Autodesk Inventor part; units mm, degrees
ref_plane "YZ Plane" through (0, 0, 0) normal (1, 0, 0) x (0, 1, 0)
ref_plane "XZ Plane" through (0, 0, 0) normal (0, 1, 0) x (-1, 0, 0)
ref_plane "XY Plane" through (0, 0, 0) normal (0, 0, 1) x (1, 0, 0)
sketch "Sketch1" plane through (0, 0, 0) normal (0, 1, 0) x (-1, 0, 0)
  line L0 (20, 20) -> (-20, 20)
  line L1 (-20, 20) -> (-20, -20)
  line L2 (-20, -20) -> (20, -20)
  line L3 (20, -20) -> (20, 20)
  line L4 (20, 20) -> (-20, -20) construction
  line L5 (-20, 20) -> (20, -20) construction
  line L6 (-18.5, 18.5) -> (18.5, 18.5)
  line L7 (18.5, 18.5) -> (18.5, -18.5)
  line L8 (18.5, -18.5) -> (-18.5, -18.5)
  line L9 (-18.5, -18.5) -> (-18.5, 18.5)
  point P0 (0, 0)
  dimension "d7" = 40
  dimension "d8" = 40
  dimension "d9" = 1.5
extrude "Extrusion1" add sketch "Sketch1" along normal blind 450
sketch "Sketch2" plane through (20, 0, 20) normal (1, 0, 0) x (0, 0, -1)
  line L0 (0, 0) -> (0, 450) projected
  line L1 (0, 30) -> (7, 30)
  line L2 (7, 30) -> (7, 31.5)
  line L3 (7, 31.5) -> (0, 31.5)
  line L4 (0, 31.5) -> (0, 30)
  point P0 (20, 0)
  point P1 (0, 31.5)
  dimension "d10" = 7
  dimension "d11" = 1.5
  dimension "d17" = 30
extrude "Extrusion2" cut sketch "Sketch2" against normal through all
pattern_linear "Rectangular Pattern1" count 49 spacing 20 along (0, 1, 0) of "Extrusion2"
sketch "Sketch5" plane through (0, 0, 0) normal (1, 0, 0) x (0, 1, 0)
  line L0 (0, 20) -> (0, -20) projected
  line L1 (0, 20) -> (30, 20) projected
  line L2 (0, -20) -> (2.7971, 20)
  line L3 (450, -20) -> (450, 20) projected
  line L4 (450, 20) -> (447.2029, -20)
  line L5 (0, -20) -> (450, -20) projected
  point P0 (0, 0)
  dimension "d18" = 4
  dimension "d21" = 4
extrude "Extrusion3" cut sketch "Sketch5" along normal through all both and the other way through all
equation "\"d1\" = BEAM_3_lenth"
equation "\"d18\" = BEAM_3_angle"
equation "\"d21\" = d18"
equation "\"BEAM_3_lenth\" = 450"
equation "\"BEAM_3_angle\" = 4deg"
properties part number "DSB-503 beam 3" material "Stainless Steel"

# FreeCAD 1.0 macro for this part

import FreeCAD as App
import Part
import Sketcher
from FreeCAD import Vector
Q = App.Units.Quantity

doc = App.newDocument("Part")
body = doc.addObject("PartDesign::Body", "Body")

# Sketch on XZ plane
sketch1 = body.newObject("Sketcher::SketchObject", "Sketch")
sketch1.AttachmentSupport = (doc.getObject("XZ_Plane"), [""])
sketch1.MapMode = "FlatFace"
sketch1.addGeometry(Part.LineSegment(Vector(-20, -20, 0), Vector(-20, 20, 0)), False)
sketch1.addGeometry(Part.LineSegment(Vector(-20, 20, 0), Vector(20, 20, 0)), False)
sketch1.addGeometry(Part.LineSegment(Vector(20, 20, 0), Vector(20, -20, 0)), False)
sketch1.addGeometry(Part.LineSegment(Vector(20, -20, 0), Vector(-20, -20, 0)), False)
sketch1.addGeometry(Part.LineSegment(Vector(18, -18, 0), Vector(18, 18, 0)), False)
sketch1.addGeometry(Part.LineSegment(Vector(18, 18, 0), Vector(-18, 18, 0)), False)
sketch1.addGeometry(Part.LineSegment(Vector(-18, 18, 0), Vector(-18, -18, 0)), False)
sketch1.addGeometry(Part.LineSegment(Vector(-18, -18, 0), Vector(18, -18, 0)), False)
sketch1.addConstraint(Sketcher.Constraint("Coincident", 0, 2, 1, 1))
sketch1.addConstraint(Sketcher.Constraint("Coincident", 1, 2, 2, 1))
sketch1.addConstraint(Sketcher.Constraint("Coincident", 2, 2, 3, 1))
sketch1.addConstraint(Sketcher.Constraint("Coincident", 3, 2, 0, 1))
sketch1.addConstraint(Sketcher.Constraint("Coincident", 4, 2, 5, 1))
sketch1.addConstraint(Sketcher.Constraint("Coincident", 5, 2, 6, 1))
sketch1.addConstraint(Sketcher.Constraint("Coincident", 6, 2, 7, 1))
sketch1.addConstraint(Sketcher.Constraint("Coincident", 7, 2, 4, 1))
sketch1.addConstraint(Sketcher.Constraint("Vertical", 0))
sketch1.addConstraint(Sketcher.Constraint("Horizontal", 1))
sketch1.addConstraint(Sketcher.Constraint("Vertical", 2))
sketch1.addConstraint(Sketcher.Constraint("Horizontal", 3))
sketch1.addConstraint(Sketcher.Constraint("Vertical", 4))
sketch1.addConstraint(Sketcher.Constraint("Horizontal", 5))
sketch1.addConstraint(Sketcher.Constraint("Vertical", 6))
sketch1.addConstraint(Sketcher.Constraint("Horizontal", 7))
sketch1.addConstraint(Sketcher.Constraint("Symmetric", 0, 2, 2, 2, -1, 1))
sketch1.addConstraint(Sketcher.Constraint("Symmetric", 4, 2, 6, 2, -1, 1))
sketch1.addConstraint(Sketcher.Constraint("Equal", 3, 0))
sketch1.addConstraint(Sketcher.Constraint("Equal", 7, 4))
sketch1.addConstraint(Sketcher.Constraint("DistanceX", 1, 1, 1, 2, Q("40 mm")))
sketch1.addConstraint(Sketcher.Constraint("DistanceX", 4, 2, 1, 2, Q("1.5 mm")))
pad1 = body.newObject("PartDesign::Pad", "Pad")
pad1.Profile = sketch1
pad1.Length = 450
pad1.Reversed = True

# Sketch on YZ plane
sketch2 = body.newObject("Sketcher::SketchObject", "Sketch001")
sketch2.AttachmentSupport = (doc.getObject("YZ_Plane"), [""])
sketch2.MapMode = "FlatFace"
sketch2.AttachmentOffset = App.Placement(Vector(0, 0, 20), App.Rotation())
sketch2.addGeometry(Part.LineSegment(Vector(31.5, 20, 0), Vector(30, 20, 0)), False)
sketch2.addGeometry(Part.LineSegment(Vector(30, 20, 0), Vector(30, 13, 0)), False)
sketch2.addGeometry(Part.LineSegment(Vector(30, 13, 0), Vector(31.5, 13, 0)), False)
sketch2.addGeometry(Part.LineSegment(Vector(31.5, 13, 0), Vector(31.5, 20, 0)), False)
sketch2.addConstraint(Sketcher.Constraint("Coincident", 0, 2, 1, 1))
sketch2.addConstraint(Sketcher.Constraint("Coincident", 1, 2, 2, 1))
sketch2.addConstraint(Sketcher.Constraint("Coincident", 2, 2, 3, 1))
sketch2.addConstraint(Sketcher.Constraint("Coincident", 3, 2, 0, 1))
sketch2.addConstraint(Sketcher.Constraint("Horizontal", 0))
sketch2.addConstraint(Sketcher.Constraint("Vertical", 1))
sketch2.addConstraint(Sketcher.Constraint("Horizontal", 2))
sketch2.addConstraint(Sketcher.Constraint("Vertical", 3))
sketch2.addConstraint(Sketcher.Constraint("DistanceY", 1, 2, 1, 1, Q("7 mm")))
sketch2.addConstraint(Sketcher.Constraint("DistanceX", 0, 2, 0, 1, Q("1.5 mm")))
sketch2.addConstraint(Sketcher.Constraint("DistanceX", -1, 1, 0, 2, Q("30 mm")))
sketch2.addConstraint(Sketcher.Constraint("DistanceY", -1, 1, 0, 2, Q("20 mm")))
pocket1 = body.newObject("PartDesign::Pocket", "Pocket")
pocket1.Profile = sketch2
pocket1.Type = "ThroughAll"
doc.recompute()

linearpattern = body.newObject("PartDesign::LinearPattern", "LinearPattern")
linearpattern.Originals = [pocket1]
linearpattern.Direction = (doc.getObject("Y_Axis"), [""])
linearpattern.Mode = "offset"
linearpattern.Offset = 20
linearpattern.Occurrences = 49
body.Tip = linearpattern

# Sketch on YZ plane
sketch3 = body.newObject("Sketcher::SketchObject", "Sketch002")
sketch3.AttachmentSupport = (doc.getObject("YZ_Plane"), [""])
sketch3.MapMode = "FlatFace"
sketch3.addGeometry(Part.LineSegment(Vector(2.8, 20, 0), Vector(0, 20, 0)), False)
sketch3.addGeometry(Part.LineSegment(Vector(0, 20, 0), Vector(0, -20, 0)), False)
sketch3.addGeometry(Part.LineSegment(Vector(0, -20, 0), Vector(2.8, 20, 0)), False)
sketch3.addGeometry(Part.LineSegment(Vector(450, 20, 0), Vector(447.2, -20, 0)), False)
sketch3.addGeometry(Part.LineSegment(Vector(447.2, -20, 0), Vector(450, -20, 0)), False)
sketch3.addGeometry(Part.LineSegment(Vector(450, -20, 0), Vector(450, 20, 0)), False)
sketch3.addConstraint(Sketcher.Constraint("Coincident", 0, 2, 1, 1))
sketch3.addConstraint(Sketcher.Constraint("Coincident", 1, 2, 2, 1))
sketch3.addConstraint(Sketcher.Constraint("Coincident", 2, 2, 0, 1))
sketch3.addConstraint(Sketcher.Constraint("Coincident", 3, 2, 4, 1))
sketch3.addConstraint(Sketcher.Constraint("Coincident", 4, 2, 5, 1))
sketch3.addConstraint(Sketcher.Constraint("Coincident", 5, 2, 3, 1))
sketch3.addConstraint(Sketcher.Constraint("Horizontal", 0))
sketch3.addConstraint(Sketcher.Constraint("Vertical", 1))
sketch3.addConstraint(Sketcher.Constraint("Horizontal", 4))
sketch3.addConstraint(Sketcher.Constraint("Vertical", 5))
sketch3.addConstraint(Sketcher.Constraint("Symmetric", 0, 2, 1, 2, -1, 1))
sketch3.addConstraint(Sketcher.Constraint("Parallel", 2, 3))
sketch3.addConstraint(Sketcher.Constraint("Horizontal", 1, 2, 3, 2))
sketch3.addConstraint(Sketcher.Constraint("Horizontal", 2, 2, 5, 2))
sketch3.addConstraint(Sketcher.Constraint("DistanceY", 1, 2, 1, 1, Q("40 mm")))
sketch3.addConstraint(Sketcher.Constraint("Angle", 2, Q("86 deg")))
sketch3.addConstraint(Sketcher.Constraint("DistanceX", -1, 1, 4, 2, Q("450 mm")))
pocket2 = body.newObject("PartDesign::Pocket", "Pocket001")
pocket2.Profile = sketch3
pocket2.Type = "ThroughAll"
pocket2.Midplane = True

doc.recompute()
